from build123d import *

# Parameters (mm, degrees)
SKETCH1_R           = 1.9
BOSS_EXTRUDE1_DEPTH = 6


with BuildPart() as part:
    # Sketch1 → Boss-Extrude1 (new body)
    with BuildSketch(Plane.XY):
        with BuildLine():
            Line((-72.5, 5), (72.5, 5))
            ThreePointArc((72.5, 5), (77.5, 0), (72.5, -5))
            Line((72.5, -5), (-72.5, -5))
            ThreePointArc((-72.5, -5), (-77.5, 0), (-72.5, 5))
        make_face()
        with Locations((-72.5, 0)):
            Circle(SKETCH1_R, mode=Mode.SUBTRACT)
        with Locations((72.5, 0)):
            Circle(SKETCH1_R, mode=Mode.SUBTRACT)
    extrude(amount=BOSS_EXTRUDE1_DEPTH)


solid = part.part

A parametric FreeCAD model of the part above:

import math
import FreeCAD as App
import Part
import Sketcher
Q = App.Units.Quantity

doc = App.newDocument("Part")
body = doc.addObject("PartDesign::Body", "Body")

sketch1 = body.newObject("Sketcher::SketchObject", "Sketch")
sketch1.AttachmentSupport = (doc.getObject("XY_Plane"), [""])
sketch1.MapMode = "FlatFace"
sketch1.addGeometry([
    Part.LineSegment(App.Vector(72.5, 5, 0), App.Vector(-72.5, 5, 0)),
    Part.ArcOfCircle(Part.Circle(App.Vector(-72.5, 0, 0), App.Vector(0, 0, 1), 5), math.radians(90), math.radians(270)),
    Part.LineSegment(App.Vector(-72.5, -5, 0), App.Vector(72.5, -5, 0)),
    Part.ArcOfCircle(Part.Circle(App.Vector(72.5, 0, 0), App.Vector(0, 0, 1), 5), math.radians(-90), math.radians(90)),
    Part.Circle(App.Vector(72.5, 0, 0), App.Vector(0, 0, 1), 1.9),
    Part.Circle(App.Vector(-72.5, 0, 0), App.Vector(0, 0, 1), 1.9),
], False)
sketch1.addConstraint([
    Sketcher.Constraint("Tangent", 0, 2, 1, 1),
    Sketcher.Constraint("Tangent", 1, 2, 2, 1),
    Sketcher.Constraint("Tangent", 2, 2, 3, 1),
    Sketcher.Constraint("Tangent", 3, 2, 0, 1),
    Sketcher.Constraint("Horizontal", 0),
    Sketcher.Constraint("Horizontal", 2),
    Sketcher.Constraint("Coincident", 4, 3, 3, 3),
    Sketcher.Constraint("Coincident", 5, 3, 1, 3),
    Sketcher.Constraint("Equal", 4, 5),
    Sketcher.Constraint("Symmetric", 1, 3, 3, 3, -1, 1),
    Sketcher.Constraint("Radius", 1, Q("5 mm")),
    Sketcher.Constraint("Diameter", 4, Q("3.8 mm")),
    Sketcher.Constraint("DistanceX", 0, 2, 0, 1, Q("145 mm")),
])
pad1 = body.newObject("PartDesign::Pad", "Pad")
pad1.Profile = sketch1
pad1.Length = 6

doc.recompute()
